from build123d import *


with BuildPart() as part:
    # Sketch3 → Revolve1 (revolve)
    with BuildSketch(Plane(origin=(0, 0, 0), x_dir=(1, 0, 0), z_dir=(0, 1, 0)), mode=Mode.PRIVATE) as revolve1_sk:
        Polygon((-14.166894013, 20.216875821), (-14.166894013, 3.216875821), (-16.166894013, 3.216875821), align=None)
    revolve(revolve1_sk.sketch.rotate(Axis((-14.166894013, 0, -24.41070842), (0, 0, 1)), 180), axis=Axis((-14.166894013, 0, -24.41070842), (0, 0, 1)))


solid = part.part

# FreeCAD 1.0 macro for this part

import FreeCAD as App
import Part
import Sketcher
from FreeCAD import Vector
Q = App.Units.Quantity

doc = App.newDocument("Part")
params = doc.addObject("Spreadsheet::Sheet", "Params")
for row, (alias, value) in enumerate([
    ("sketch1_width", "2 mm"),
    ("sketch1_height", "17 mm"),
    ("revolution_angle", "360 deg"),
], start=1):
    params.set(f"A{row}", alias)
    params.set(f"B{row}", "=" + value)
    params.setAlias(f"B{row}", alias)

body = doc.addObject("PartDesign::Body", "Body")

# Sketch on XZ plane
sketch1 = doc.addObject("Sketcher::SketchObject", "Sketch")
body.addObject(sketch1)
sketch1.AttachmentSupport = (doc.XZ_Plane, [""])
sketch1.MapMode = "FlatFace"
sketch1.addGeometry([
    Part.LineSegment(Vector(-14.2, -3.2, 0), Vector(-14.2, -20.2, 0)),
    Part.LineSegment(Vector(-14.2, -20.2, 0), Vector(-16.2, -3.2, 0)),
    Part.LineSegment(Vector(-16.2, -3.2, 0), Vector(-14.2, -3.2, 0)),
], False)
sketch1.addGeometry(Part.LineSegment(Vector(-14.2, -20.2, 0), Vector(-14.2, -3.2, 0)), True)  # axis
sketch1.addConstraint([
    Sketcher.Constraint("Coincident", 0, 2, 1, 1),
    Sketcher.Constraint("Coincident", 1, 2, 2, 1),
    Sketcher.Constraint("Coincident", 2, 2, 0, 1),
    Sketcher.Constraint("Vertical", 0),
    Sketcher.Constraint("Horizontal", 2),
    Sketcher.Constraint("Vertical", 3),
    Sketcher.Constraint("Coincident", 3, 1, 0, 2),
    Sketcher.Constraint("Horizontal", 1, 2, 3, 2),
    Sketcher.Constraint("DistanceX", 2, 1, 2, 2, Q("2 mm")),
    Sketcher.Constraint("DistanceY", 0, 2, 0, 1, Q("17 mm")),
    Sketcher.Constraint("DistanceX", 0, 2, -1, 1, Q("14.166894 mm")),
    Sketcher.Constraint("DistanceY", 0, 2, -1, 1, Q("20.216876 mm")),
])
sketch1.setExpression("Constraints[8]", "Params.sketch1_width")
sketch1.setExpression("Constraints[9]", "Params.sketch1_height")
revolution = doc.addObject("PartDesign::Revolution", "Revolution")
body.addObject(revolution)
revolution.Profile = sketch1
revolution.ReferenceAxis = (sketch1, ["Axis0"])
revolution.setExpression("Angle", "Params.revolution_angle")

doc.recompute()
